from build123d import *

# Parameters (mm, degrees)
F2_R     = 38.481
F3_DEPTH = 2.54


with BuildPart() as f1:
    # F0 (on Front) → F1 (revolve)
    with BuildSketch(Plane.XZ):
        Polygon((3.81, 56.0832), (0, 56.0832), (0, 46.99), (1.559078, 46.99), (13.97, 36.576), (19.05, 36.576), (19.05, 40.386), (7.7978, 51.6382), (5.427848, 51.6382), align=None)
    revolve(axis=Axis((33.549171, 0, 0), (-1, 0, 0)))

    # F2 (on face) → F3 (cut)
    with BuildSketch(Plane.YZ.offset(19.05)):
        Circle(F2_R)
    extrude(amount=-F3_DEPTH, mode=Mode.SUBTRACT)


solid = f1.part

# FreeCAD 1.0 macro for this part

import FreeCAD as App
import Part
import Sketcher
from FreeCAD import Vector
Q = App.Units.Quantity


def add_polygon(sketch, points):
    """Adds a closed chain of lines whose ends are joined by coincident constraints."""
    first, n = sketch.GeometryCount, len(points)
    for a, b in zip(points, points[1:] + points[:1]):
        sketch.addGeometry(Part.LineSegment(App.Vector(*a, 0), App.Vector(*b, 0)), False)
    for i in range(n):
        sketch.addConstraint(Sketcher.Constraint("Coincident", first + i, 2, first + (i + 1) % n, 1))

doc = App.newDocument("Part")
body = doc.addObject("PartDesign::Body", "Body")

sketch1 = body.newObject("Sketcher::SketchObject", "Sketch")
sketch1.AttachmentSupport = (doc.getObject("XZ_Plane"), [""])
sketch1.MapMode = "FlatFace"
add_polygon(sketch1, [(3.8, 56.1), (0, 56.1), (0, 47), (1.6, 47), (14, 36.6), (19.1, 36.6), (19.1, 40.4), (7.8, 51.6), (5.4, 51.6)])
sketch1.addConstraint(Sketcher.Constraint("Horizontal", 0))
sketch1.addConstraint(Sketcher.Constraint("Vertical", 1))
sketch1.addConstraint(Sketcher.Constraint("Horizontal", 2))
sketch1.addConstraint(Sketcher.Constraint("Horizontal", 4))
sketch1.addConstraint(Sketcher.Constraint("Vertical", 5))
sketch1.addConstraint(Sketcher.Constraint("Horizontal", 7))
sketch1.addConstraint(Sketcher.Constraint("PointOnObject", 0, 2, -2))
sketch1.addConstraint(Sketcher.Constraint("Equal", 0, 5))
sketch1.addConstraint(Sketcher.Constraint("DistanceX", 4, 1, 4, 2, Q("0.2 in")))
sketch1.addConstraint(Sketcher.Constraint("Angle", 3, Q("-40 deg")))
sketch1.addConstraint(Sketcher.Constraint("Angle", 6, Q("135 deg")))
sketch1.addConstraint(Sketcher.Constraint("Angle", 8, Q("110.000004 deg")))
sketch1.addConstraint(Sketcher.Constraint("DistanceX", 0, 2, 0, 1, Q("0.15 in")))
sketch1.addConstraint(Sketcher.Constraint("DistanceY", 1, 2, 1, 1, Q("0.358 in")))
sketch1.addConstraint(Sketcher.Constraint("DistanceY", -1, 1, 1, 2, Q("1.85 in")))
sketch1.addConstraint(Sketcher.Constraint("DistanceX", -1, 1, 3, 2, Q("0.55 in")))
sketch1.addConstraint(Sketcher.Constraint("DistanceY", -1, 1, 3, 2, Q("1.44 in")))
sketch1.addConstraint(Sketcher.Constraint("DistanceX", -1, 1, 6, 2, Q("0.307 in")))
revolution = body.newObject("PartDesign::Revolution", "Revolution")
revolution.Profile = sketch1
revolution.ReferenceAxis = (sketch1, ["H_Axis"])
revolution.Angle = 360

sketch2 = body.newObject("Sketcher::SketchObject", "Sketch001")
sketch2.AttachmentSupport = (doc.getObject("YZ_Plane"), [""])
sketch2.MapMode = "FlatFace"
sketch2.AttachmentOffset = App.Placement(Vector(0, 0, 0.75 * 25.4), App.Rotation())
sketch2.addGeometry(Part.Circle(Vector(0, 0, 0), Vector(0, 0, 1), 38), False)
sketch2.addConstraint(Sketcher.Constraint("Coincident", 0, 3, -1, 1))
sketch2.addConstraint(Sketcher.Constraint("Diameter", 0, Q("3.03 in")))
pocket1 = body.newObject("PartDesign::Pocket", "Pocket")
pocket1.Profile = sketch2
pocket1.Length = Q("0.1 in")

doc.recompute()
